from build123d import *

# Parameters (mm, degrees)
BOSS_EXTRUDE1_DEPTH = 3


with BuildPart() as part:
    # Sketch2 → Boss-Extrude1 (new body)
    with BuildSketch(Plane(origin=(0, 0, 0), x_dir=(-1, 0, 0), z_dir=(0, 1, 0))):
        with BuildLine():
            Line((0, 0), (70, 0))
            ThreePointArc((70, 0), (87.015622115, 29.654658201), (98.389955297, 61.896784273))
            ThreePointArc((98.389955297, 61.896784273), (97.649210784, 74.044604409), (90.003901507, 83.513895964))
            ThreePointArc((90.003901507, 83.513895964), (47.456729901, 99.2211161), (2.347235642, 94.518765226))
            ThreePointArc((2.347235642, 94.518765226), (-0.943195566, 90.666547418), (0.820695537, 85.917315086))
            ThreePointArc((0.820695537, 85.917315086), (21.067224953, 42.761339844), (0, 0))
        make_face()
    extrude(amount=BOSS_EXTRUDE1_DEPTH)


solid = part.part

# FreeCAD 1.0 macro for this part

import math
import FreeCAD as App
import Part
import Sketcher
from FreeCAD import Vector
Q = App.Units.Quantity

doc = App.newDocument("Part")
body = doc.addObject("PartDesign::Body", "Body")

# Sketch on XZ plane
sketch1 = body.newObject("Sketcher::SketchObject", "Sketch")
sketch1.AttachmentSupport = (doc.getObject("XZ_Plane"), [""])
sketch1.MapMode = "FlatFace"
sketch1.addGeometry([
    Part.LineSegment(Vector(0, 0, 0), Vector(-70, 0, 0)),  # 0
    Part.ArcOfCircle(Part.Circle(Vector(84, 108, 0), Vector(0, 0, 1), 188), math.radians(-166), math.radians(-145)),  # 1
    Part.ArcOfCircle(Part.Circle(Vector(-79, 67, 0), Vector(0, 0, 1), 20), math.radians(123), math.radians(194)),  # 2
    Part.ArcOfCircle(Part.Circle(Vector(-35, 0, 0), Vector(0, 0, 1), 100), math.radians(71), math.radians(123)),  # 3
    Part.ArcOfCircle(Part.Circle(Vector(-4, 90, 0), Vector(0, 0, 1), 5), math.radians(-51), math.radians(71)),  # 4
    Part.ArcOfCircle(Part.Circle(Vector(34, 43, 0), Vector(0, 0, 1), 55), math.radians(129), math.radians(232)),  # 5
], False)
sketch1.addConstraint([
    Sketcher.Constraint("Coincident", 0, 2, 1, 2),
    Sketcher.Constraint("Tangent", 1, 1, 2, 2),
    Sketcher.Constraint("Tangent", 2, 1, 3, 2),
    Sketcher.Constraint("Tangent", 3, 1, 4, 2),
    Sketcher.Constraint("Tangent", 4, 1, 5, 1),
    Sketcher.Constraint("Coincident", 5, 2, 0, 1),
    Sketcher.Constraint("Horizontal", 0),
    Sketcher.Constraint("Coincident", 5, 2, -1, 1),
    Sketcher.Constraint("PointOnObject", 3, 3, -1),
    Sketcher.Constraint("Radius", 2, Q("20 mm")),
    Sketcher.Constraint("Radius", 3, Q("100 mm")),
    Sketcher.Constraint("Radius", 4, Q("5 mm")),
    Sketcher.Constraint("Radius", 5, Q("55 mm")),
    Sketcher.Constraint("DistanceX", 0, 2, 0, 1, Q("70 mm")),
    Sketcher.Constraint("DistanceX", 3, 3, -1, 1, Q("35 mm")),
    Sketcher.Constraint("Radius", 1, Q("188.343363 mm")),
    Sketcher.Constraint("DistanceX", 2, 1, -1, 1, Q("90.003902 mm")),
    Sketcher.Constraint("DistanceY", 5, 3, 1, 1, Q("18.6101 mm")),
])
pad1 = body.newObject("PartDesign::Pad", "Pad")
pad1.Profile = sketch1
pad1.Length = 3
pad1.Reversed = True

doc.recompute()
